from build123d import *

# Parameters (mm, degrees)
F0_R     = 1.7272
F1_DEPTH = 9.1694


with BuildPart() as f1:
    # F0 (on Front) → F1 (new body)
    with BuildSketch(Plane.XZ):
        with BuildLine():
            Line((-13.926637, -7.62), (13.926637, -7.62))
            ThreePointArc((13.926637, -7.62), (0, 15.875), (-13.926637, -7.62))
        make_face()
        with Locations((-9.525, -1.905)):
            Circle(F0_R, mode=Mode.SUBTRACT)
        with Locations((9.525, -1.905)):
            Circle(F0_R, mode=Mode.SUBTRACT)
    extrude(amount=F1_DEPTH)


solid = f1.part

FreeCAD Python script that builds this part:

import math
import FreeCAD as App
import Part
import Sketcher
Q = App.Units.Quantity

doc = App.newDocument("Part")
params = doc.addObject("Spreadsheet::Sheet", "Params")
for row, (alias, value) in enumerate([
    ("sketch1_diameter", "0.136 in"),
    ("sketch1_radius", "0.625 in"),
    ("pad1_length", "0.361 in"),
], start=1):
    params.set(f"A{row}", alias)
    params.set(f"B{row}", "=" + value)
    params.setAlias(f"B{row}", alias)

body = doc.addObject("PartDesign::Body", "Body")

# Sketch on XZ plane
sketch1 = body.newObject("Sketcher::SketchObject", "Sketch")
sketch1.AttachmentSupport = (doc.getObject("XZ_Plane"), [""])
sketch1.MapMode = "FlatFace"
sketch1.addGeometry(Part.LineSegment(App.Vector(-13.9, -7.6, 0), App.Vector(13.9, -7.6, 0)), False)
sketch1.addGeometry(Part.ArcOfCircle(Part.Circle(App.Vector(0, 0, 0), App.Vector(0, 0, 1), 15.9), math.radians(-29), math.radians(209)), False)
sketch1.addGeometry(Part.Circle(App.Vector(-9.5, -1.9, 0), App.Vector(0, 0, 1), 1.7), False)
sketch1.addGeometry(Part.Circle(App.Vector(9.5, -1.9, 0), App.Vector(0, 0, 1), 1.7), False)
sketch1.addConstraint(Sketcher.Constraint("Coincident", 0, 1, 1, 2))
sketch1.addConstraint(Sketcher.Constraint("Coincident", 1, 1, 0, 2))
sketch1.addConstraint(Sketcher.Constraint("Horizontal", 0))
sketch1.addConstraint(Sketcher.Constraint("Coincident", 1, 3, -1, 1))
sketch1.addConstraint(Sketcher.Constraint("Equal", 2, 3))
sketch1.addConstraint(Sketcher.Constraint("Symmetric", 2, 3, 3, 3, -2))
sketch1.addConstraint(Sketcher.Constraint("Diameter", 2, Q("0.136 in")))
sketch1.addConstraint(Sketcher.Constraint("Radius", 1, Q("0.625 in")))
sketch1.addConstraint(Sketcher.Constraint("DistanceY", 0, 1, -1, 1, Q("0.3 in")))
sketch1.addConstraint(Sketcher.Constraint("DistanceX", 2, 3, 3, 3, Q("0.75 in")))
sketch1.addConstraint(Sketcher.Constraint("DistanceY", 2, 3, -1, 1, Q("0.075 in")))
sketch1.setExpression("Constraints[6]", "Params.sketch1_diameter")
sketch1.setExpression("Constraints[7]", "Params.sketch1_radius")
pad1 = body.newObject("PartDesign::Pad", "Pad")
pad1.Profile = sketch1
pad1.setExpression("Length", "Params.pad1_length")

doc.recompute()
